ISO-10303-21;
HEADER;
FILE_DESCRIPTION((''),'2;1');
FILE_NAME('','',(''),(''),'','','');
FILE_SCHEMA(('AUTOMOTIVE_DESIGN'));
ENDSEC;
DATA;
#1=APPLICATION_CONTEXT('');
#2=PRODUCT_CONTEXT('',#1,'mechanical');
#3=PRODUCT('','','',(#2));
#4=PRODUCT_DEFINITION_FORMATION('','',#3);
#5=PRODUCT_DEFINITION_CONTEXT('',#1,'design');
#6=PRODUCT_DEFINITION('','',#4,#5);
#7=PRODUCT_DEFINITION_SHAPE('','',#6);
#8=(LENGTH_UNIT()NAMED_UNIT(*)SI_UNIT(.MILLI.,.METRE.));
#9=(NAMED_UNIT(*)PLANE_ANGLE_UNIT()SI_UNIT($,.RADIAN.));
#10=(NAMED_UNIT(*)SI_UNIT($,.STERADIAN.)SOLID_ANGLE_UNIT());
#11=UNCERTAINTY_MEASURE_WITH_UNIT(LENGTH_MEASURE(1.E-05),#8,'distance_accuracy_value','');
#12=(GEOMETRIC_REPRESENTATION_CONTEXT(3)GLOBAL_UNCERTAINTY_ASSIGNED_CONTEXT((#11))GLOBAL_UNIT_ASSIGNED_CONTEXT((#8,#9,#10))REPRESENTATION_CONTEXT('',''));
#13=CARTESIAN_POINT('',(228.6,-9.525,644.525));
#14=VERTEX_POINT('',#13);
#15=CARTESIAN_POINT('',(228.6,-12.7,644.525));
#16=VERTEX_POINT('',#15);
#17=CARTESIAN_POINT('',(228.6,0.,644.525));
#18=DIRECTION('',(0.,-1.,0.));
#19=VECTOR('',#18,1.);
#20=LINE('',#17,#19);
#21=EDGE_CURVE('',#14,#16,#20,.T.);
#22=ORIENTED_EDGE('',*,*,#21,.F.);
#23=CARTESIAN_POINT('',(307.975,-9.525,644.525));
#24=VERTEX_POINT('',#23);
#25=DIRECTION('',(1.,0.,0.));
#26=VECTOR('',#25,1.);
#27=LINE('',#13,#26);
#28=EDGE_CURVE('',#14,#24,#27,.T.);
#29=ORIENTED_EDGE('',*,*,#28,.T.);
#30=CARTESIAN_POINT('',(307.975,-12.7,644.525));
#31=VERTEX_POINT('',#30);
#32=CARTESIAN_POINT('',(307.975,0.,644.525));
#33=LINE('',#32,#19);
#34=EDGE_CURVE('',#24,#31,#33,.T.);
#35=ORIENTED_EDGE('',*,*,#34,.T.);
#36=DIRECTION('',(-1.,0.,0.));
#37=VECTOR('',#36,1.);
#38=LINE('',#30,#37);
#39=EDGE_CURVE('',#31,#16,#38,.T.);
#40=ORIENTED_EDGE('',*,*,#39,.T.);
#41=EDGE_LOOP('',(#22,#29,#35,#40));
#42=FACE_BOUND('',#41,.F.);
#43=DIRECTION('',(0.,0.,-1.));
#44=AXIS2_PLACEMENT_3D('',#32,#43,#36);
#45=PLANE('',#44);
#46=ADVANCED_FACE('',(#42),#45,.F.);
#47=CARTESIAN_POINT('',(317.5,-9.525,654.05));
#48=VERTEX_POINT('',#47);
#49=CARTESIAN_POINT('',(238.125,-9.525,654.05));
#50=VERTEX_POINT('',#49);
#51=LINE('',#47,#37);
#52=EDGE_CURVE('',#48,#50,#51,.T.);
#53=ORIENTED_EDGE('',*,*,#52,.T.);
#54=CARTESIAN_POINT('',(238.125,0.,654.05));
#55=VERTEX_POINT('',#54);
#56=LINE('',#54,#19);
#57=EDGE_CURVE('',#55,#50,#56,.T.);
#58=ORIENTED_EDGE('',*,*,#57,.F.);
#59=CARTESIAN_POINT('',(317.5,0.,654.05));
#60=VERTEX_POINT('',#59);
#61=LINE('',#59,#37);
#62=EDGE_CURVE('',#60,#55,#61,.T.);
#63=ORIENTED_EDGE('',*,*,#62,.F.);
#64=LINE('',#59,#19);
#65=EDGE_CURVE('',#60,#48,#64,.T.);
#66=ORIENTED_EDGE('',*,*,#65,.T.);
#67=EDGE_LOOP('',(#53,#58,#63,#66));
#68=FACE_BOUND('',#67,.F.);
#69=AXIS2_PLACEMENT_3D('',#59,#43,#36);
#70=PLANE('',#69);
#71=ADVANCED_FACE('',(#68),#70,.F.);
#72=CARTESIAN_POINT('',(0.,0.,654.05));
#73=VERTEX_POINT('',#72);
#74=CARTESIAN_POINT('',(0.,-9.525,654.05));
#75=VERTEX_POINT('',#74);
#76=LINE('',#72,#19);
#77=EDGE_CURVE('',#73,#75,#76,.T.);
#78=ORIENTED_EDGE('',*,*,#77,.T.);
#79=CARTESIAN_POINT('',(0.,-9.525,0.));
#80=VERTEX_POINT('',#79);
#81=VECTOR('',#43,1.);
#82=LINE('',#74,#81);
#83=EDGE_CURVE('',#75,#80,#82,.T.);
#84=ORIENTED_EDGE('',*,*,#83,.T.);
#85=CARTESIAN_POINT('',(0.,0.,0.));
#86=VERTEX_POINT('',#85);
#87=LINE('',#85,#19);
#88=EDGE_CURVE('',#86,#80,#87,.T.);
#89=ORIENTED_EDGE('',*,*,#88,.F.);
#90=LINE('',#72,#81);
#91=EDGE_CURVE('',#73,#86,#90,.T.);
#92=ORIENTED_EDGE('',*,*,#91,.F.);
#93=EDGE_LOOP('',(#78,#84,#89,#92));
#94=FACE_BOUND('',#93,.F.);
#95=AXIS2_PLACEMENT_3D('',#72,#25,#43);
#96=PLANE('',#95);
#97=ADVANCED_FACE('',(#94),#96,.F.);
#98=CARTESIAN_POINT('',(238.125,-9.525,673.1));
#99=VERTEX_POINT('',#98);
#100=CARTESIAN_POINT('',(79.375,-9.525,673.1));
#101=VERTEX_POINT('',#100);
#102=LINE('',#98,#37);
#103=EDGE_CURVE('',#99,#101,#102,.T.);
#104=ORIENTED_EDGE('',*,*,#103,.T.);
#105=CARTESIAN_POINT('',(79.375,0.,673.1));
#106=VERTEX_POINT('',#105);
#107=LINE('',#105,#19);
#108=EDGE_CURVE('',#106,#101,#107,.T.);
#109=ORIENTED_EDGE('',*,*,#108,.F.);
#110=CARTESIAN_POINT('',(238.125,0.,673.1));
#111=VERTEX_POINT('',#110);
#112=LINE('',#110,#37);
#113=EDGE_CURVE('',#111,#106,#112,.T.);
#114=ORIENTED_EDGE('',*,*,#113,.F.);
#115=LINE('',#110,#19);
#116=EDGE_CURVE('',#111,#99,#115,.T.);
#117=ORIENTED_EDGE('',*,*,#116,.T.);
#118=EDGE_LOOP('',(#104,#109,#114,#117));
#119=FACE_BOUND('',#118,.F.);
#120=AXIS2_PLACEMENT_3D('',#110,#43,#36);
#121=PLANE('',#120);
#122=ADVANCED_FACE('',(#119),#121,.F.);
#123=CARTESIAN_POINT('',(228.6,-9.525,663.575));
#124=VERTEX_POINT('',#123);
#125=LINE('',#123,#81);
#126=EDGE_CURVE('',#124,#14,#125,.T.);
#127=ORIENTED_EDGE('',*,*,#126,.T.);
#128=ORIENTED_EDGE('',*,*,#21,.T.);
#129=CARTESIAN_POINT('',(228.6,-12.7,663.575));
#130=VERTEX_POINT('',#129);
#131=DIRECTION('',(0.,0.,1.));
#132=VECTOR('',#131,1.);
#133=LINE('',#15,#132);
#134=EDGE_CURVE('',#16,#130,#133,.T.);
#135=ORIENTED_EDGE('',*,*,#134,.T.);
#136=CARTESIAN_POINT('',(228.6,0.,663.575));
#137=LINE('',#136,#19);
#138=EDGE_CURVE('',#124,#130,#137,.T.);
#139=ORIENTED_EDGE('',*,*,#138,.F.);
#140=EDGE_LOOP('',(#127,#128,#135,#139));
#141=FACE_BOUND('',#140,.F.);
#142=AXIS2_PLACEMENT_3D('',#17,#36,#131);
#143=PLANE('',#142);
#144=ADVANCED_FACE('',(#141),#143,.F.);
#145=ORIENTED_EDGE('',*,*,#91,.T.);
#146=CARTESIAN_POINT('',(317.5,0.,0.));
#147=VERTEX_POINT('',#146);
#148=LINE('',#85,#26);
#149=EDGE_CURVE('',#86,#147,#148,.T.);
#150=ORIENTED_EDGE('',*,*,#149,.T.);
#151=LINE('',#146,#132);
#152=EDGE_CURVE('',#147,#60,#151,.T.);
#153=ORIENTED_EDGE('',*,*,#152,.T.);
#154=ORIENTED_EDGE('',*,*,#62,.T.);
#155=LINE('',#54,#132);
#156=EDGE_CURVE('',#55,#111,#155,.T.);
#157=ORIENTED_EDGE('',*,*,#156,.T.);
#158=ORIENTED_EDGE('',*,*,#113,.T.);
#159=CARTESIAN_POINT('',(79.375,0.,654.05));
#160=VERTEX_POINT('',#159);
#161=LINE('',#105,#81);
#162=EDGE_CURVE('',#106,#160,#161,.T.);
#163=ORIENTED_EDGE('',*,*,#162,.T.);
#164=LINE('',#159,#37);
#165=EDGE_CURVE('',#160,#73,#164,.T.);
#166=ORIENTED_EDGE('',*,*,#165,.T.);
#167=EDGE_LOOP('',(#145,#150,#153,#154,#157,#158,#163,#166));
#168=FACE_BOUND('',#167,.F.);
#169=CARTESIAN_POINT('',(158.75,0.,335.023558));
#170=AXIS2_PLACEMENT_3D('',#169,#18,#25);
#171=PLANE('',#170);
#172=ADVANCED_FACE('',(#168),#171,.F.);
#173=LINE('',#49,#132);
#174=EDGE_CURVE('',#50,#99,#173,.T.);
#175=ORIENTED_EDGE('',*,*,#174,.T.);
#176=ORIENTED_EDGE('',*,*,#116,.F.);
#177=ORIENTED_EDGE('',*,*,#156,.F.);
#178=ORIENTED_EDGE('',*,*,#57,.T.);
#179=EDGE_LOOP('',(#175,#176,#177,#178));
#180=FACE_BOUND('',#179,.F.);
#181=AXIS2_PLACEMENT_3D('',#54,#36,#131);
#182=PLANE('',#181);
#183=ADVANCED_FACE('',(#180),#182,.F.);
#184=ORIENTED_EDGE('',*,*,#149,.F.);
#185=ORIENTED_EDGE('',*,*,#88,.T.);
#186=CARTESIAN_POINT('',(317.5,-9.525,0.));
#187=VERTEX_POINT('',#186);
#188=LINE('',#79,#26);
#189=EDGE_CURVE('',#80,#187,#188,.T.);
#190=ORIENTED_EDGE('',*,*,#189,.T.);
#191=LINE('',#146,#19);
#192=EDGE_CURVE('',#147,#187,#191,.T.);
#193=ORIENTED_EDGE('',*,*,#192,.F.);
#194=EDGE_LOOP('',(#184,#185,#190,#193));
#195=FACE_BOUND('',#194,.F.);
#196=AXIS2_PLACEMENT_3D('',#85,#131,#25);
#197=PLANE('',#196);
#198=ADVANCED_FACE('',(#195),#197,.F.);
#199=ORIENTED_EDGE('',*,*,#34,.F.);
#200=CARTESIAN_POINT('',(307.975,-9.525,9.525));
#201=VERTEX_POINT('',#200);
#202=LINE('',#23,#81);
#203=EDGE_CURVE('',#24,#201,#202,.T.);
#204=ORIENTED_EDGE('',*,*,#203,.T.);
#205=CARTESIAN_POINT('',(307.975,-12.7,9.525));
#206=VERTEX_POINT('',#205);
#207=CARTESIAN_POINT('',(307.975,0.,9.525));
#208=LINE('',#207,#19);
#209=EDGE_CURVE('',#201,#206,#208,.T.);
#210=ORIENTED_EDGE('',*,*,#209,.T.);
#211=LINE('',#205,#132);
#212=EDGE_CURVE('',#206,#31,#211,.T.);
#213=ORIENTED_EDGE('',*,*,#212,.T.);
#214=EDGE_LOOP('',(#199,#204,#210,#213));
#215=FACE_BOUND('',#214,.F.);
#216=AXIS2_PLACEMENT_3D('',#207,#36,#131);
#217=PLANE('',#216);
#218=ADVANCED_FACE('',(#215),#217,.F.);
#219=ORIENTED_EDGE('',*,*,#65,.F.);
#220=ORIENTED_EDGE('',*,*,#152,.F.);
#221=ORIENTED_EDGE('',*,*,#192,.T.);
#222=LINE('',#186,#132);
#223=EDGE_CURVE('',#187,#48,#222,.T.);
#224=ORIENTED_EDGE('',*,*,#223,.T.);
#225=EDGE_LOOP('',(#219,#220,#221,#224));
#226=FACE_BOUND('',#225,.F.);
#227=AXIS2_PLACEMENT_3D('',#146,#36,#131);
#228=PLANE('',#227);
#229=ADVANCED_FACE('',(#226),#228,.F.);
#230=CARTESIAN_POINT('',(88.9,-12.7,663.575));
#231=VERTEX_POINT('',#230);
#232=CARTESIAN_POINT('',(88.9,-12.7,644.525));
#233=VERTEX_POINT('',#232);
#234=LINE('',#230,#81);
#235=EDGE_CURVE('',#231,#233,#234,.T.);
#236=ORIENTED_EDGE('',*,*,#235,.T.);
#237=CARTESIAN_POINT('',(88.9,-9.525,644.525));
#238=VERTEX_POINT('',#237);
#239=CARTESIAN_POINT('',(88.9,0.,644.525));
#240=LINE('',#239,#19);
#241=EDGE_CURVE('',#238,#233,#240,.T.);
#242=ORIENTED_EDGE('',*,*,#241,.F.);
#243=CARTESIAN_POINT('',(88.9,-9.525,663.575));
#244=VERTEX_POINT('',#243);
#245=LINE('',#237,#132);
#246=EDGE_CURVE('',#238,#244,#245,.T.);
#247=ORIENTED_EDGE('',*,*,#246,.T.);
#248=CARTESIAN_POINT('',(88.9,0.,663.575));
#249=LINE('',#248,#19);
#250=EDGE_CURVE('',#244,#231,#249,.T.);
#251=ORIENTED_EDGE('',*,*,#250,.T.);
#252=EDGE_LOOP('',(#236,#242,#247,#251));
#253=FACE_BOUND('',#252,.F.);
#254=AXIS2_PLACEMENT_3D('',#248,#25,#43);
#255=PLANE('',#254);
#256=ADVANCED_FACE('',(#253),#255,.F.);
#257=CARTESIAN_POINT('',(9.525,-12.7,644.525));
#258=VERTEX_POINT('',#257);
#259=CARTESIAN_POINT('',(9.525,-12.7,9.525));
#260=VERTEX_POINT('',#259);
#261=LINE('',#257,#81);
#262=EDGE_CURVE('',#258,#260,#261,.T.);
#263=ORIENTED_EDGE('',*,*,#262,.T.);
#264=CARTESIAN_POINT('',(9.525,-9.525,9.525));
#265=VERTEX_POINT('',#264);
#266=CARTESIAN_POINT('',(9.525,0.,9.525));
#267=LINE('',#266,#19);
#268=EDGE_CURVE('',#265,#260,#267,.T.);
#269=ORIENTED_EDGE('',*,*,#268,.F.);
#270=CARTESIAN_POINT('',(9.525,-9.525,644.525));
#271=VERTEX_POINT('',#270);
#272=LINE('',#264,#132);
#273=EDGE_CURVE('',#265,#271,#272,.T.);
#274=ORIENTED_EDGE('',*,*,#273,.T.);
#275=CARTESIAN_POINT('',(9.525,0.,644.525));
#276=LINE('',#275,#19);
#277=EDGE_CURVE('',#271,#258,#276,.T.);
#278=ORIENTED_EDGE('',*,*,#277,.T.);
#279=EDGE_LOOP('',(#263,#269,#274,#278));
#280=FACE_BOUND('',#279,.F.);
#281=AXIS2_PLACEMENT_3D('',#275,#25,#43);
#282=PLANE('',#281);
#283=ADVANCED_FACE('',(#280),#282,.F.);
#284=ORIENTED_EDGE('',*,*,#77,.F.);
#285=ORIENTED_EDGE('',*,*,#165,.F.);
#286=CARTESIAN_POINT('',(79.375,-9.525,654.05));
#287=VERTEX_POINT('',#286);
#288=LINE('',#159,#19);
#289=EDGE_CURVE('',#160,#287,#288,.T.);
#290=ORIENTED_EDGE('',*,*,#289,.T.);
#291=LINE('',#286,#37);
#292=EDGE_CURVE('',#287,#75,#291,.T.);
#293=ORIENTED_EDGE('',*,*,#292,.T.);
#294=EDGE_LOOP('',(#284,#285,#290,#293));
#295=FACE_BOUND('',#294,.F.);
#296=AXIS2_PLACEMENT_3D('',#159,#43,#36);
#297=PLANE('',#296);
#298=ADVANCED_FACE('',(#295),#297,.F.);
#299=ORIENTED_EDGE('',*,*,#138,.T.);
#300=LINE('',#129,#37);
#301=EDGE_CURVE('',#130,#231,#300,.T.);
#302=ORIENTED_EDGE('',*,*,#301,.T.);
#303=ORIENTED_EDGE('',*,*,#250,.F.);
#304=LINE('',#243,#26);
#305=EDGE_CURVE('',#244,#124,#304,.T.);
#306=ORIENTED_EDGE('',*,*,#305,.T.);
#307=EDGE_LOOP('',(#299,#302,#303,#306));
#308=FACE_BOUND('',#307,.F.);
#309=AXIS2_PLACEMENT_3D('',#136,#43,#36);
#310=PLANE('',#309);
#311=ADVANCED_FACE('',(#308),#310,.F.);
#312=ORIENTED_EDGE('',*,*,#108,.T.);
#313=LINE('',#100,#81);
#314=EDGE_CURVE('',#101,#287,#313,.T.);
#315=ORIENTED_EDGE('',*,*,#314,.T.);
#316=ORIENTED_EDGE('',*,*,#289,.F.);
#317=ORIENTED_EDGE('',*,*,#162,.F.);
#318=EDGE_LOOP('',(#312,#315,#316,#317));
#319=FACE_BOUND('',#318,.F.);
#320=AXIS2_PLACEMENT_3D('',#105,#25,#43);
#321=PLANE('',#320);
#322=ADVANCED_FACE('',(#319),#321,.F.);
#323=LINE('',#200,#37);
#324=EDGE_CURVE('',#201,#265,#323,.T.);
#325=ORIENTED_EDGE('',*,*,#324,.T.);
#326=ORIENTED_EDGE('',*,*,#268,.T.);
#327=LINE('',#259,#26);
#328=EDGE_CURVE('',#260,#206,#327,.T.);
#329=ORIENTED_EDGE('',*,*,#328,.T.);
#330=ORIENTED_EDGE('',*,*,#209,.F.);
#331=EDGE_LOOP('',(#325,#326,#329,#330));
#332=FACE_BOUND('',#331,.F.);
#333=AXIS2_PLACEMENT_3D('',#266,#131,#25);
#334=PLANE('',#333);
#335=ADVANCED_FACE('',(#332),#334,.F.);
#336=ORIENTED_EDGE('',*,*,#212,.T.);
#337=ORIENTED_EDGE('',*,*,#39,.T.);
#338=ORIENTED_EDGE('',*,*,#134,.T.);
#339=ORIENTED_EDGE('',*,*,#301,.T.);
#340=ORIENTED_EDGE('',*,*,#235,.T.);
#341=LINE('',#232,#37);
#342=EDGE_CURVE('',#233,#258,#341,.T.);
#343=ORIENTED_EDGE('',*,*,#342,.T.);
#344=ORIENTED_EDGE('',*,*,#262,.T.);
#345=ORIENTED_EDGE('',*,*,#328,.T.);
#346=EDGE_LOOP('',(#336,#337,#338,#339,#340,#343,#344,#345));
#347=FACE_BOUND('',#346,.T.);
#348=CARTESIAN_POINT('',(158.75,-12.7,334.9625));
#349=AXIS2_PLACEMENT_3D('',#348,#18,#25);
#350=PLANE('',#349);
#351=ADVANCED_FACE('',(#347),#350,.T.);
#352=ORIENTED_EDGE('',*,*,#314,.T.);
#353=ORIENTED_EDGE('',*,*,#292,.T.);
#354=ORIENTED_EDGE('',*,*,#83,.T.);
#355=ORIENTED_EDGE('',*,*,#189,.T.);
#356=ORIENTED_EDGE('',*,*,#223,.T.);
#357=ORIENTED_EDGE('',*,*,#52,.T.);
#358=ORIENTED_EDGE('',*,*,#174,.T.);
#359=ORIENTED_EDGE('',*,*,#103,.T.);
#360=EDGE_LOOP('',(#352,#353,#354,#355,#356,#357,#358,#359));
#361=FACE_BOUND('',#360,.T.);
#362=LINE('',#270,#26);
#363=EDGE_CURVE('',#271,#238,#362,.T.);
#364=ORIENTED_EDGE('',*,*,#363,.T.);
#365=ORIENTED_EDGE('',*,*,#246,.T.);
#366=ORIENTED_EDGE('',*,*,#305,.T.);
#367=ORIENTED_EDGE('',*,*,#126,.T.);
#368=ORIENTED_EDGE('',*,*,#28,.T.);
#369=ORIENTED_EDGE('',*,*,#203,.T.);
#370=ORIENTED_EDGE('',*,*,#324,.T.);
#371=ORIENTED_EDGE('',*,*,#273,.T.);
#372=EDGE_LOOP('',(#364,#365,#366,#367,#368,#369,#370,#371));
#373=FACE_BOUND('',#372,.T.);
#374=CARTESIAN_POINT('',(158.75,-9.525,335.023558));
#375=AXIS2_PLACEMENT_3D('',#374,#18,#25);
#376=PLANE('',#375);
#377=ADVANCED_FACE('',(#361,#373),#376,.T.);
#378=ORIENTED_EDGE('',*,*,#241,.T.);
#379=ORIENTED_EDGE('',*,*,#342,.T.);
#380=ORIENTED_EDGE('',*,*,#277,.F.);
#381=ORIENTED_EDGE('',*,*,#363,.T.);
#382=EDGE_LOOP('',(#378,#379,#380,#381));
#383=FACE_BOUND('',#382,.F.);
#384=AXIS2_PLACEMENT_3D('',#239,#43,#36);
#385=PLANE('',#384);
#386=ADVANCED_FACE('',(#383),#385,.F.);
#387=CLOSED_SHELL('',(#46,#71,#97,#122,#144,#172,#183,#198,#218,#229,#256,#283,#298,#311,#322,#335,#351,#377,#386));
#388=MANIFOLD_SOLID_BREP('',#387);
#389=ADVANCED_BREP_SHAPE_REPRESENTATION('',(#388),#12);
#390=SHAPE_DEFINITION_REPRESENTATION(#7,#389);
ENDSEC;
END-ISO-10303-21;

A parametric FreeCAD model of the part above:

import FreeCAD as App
import Part
import Sketcher
Q = App.Units.Quantity

doc = App.newDocument("Part")
body = doc.addObject("PartDesign::Body", "Body")

# Sketch on XZ plane
sketch1 = doc.addObject("Sketcher::SketchObject", "Sketch")
body.addObject(sketch1)
sketch1.AttachmentSupport = (doc.XZ_Plane, [""])
sketch1.MapMode = "FlatFace"
sketch1.addGeometry([
    Part.LineSegment(App.Vector(229, 664, 0), App.Vector(89, 664, 0)),  # 0
    Part.LineSegment(App.Vector(89, 664, 0), App.Vector(89, 645, 0)),  # 1
    Part.LineSegment(App.Vector(89, 645, 0), App.Vector(10, 645, 0)),  # 2
    Part.LineSegment(App.Vector(10, 645, 0), App.Vector(10, 10, 0)),  # 3
    Part.LineSegment(App.Vector(10, 10, 0), App.Vector(308, 10, 0)),  # 4
    Part.LineSegment(App.Vector(308, 10, 0), App.Vector(308, 645, 0)),  # 5
    Part.LineSegment(App.Vector(308, 645, 0), App.Vector(229, 645, 0)),  # 6
    Part.LineSegment(App.Vector(229, 645, 0), App.Vector(229, 664, 0)),  # 7
], False)
sketch1.addConstraint([
    Sketcher.Constraint("Coincident", 0, 2, 1, 1),
    Sketcher.Constraint("Coincident", 1, 2, 2, 1),
    Sketcher.Constraint("Coincident", 2, 2, 3, 1),
    Sketcher.Constraint("Coincident", 3, 2, 4, 1),
    Sketcher.Constraint("Coincident", 4, 2, 5, 1),
    Sketcher.Constraint("Coincident", 5, 2, 6, 1),
    Sketcher.Constraint("Coincident", 6, 2, 7, 1),
    Sketcher.Constraint("Coincident", 7, 2, 0, 1),
    Sketcher.Constraint("Horizontal", 0),
    Sketcher.Constraint("Vertical", 1),
    Sketcher.Constraint("Horizontal", 2),
    Sketcher.Constraint("Vertical", 3),
    Sketcher.Constraint("Horizontal", 4),
    Sketcher.Constraint("Vertical", 5),
    Sketcher.Constraint("Horizontal", 6),
    Sketcher.Constraint("Vertical", 7),
    Sketcher.Constraint("Horizontal", 2, 2, 5, 2),
    Sketcher.Constraint("Equal", 2, 6),
    Sketcher.Constraint("DistanceY", 3, 2, 3, 1, Q("25 in")),
    Sketcher.Constraint("DistanceX", 0, 2, 0, 1, Q("5.5 in")),
    Sketcher.Constraint("DistanceX", -1, 1, 6, 2, Q("9 in")),
    Sketcher.Constraint("DistanceX", 4, 1, 4, 2, Q("11.75 in")),
    Sketcher.Constraint("DistanceY", 1, 2, 1, 1, Q("0.75 in")),
    Sketcher.Constraint("DistanceY", -1, 1, 0, 2, Q("26.125 in")),
])
pad1 = doc.addObject("PartDesign::Pad", "Pad")
body.addObject(pad1)
pad1.Profile = sketch1
pad1.Length = Q("0.5 in")

# Sketch on XZ plane
sketch2 = doc.addObject("Sketcher::SketchObject", "Sketch001")
body.addObject(sketch2)
sketch2.AttachmentSupport = (doc.XZ_Plane, [""])
sketch2.MapMode = "FlatFace"
sketch2.addGeometry([
    Part.LineSegment(App.Vector(0, 654, 0), App.Vector(0, 0, 0)),  # 0
    Part.LineSegment(App.Vector(0, 0, 0), App.Vector(318, 0, 0)),  # 1
    Part.LineSegment(App.Vector(318, 0, 0), App.Vector(318, 654, 0)),  # 2
    Part.LineSegment(App.Vector(318, 654, 0), App.Vector(238, 654, 0)),  # 3
    Part.LineSegment(App.Vector(238, 654, 0), App.Vector(238, 673, 0)),  # 4
    Part.LineSegment(App.Vector(238, 673, 0), App.Vector(79, 673, 0)),  # 5
    Part.LineSegment(App.Vector(79, 673, 0), App.Vector(79, 654, 0)),  # 6
    Part.LineSegment(App.Vector(79, 654, 0), App.Vector(0, 654, 0)),  # 7
    Part.LineSegment(App.Vector(10, 645, 0), App.Vector(89, 645, 0)),  # 8
    Part.LineSegment(App.Vector(89, 645, 0), App.Vector(89, 664, 0)),  # 9
    Part.LineSegment(App.Vector(89, 664, 0), App.Vector(229, 664, 0)),  # 10
    Part.LineSegment(App.Vector(229, 664, 0), App.Vector(229, 645, 0)),  # 11
    Part.LineSegment(App.Vector(229, 645, 0), App.Vector(308, 645, 0)),  # 12
    Part.LineSegment(App.Vector(308, 645, 0), App.Vector(308, 10, 0)),  # 13
    Part.LineSegment(App.Vector(308, 10, 0), App.Vector(10, 10, 0)),  # 14
    Part.LineSegment(App.Vector(10, 10, 0), App.Vector(10, 645, 0)),  # 15
], False)
sketch2.addConstraint([
    Sketcher.Constraint("Coincident", 0, 2, 1, 1),
    Sketcher.Constraint("Coincident", 1, 2, 2, 1),
    Sketcher.Constraint("Coincident", 2, 2, 3, 1),
    Sketcher.Constraint("Coincident", 3, 2, 4, 1),
    Sketcher.Constraint("Coincident", 4, 2, 5, 1),
    Sketcher.Constraint("Coincident", 5, 2, 6, 1),
    Sketcher.Constraint("Coincident", 6, 2, 7, 1),
    Sketcher.Constraint("Coincident", 7, 2, 0, 1),
    Sketcher.Constraint("Coincident", 8, 2, 9, 1),
    Sketcher.Constraint("Coincident", 9, 2, 10, 1),
    Sketcher.Constraint("Coincident", 10, 2, 11, 1),
    Sketcher.Constraint("Coincident", 11, 2, 12, 1),
    Sketcher.Constraint("Coincident", 12, 2, 13, 1),
    Sketcher.Constraint("Coincident", 13, 2, 14, 1),
    Sketcher.Constraint("Coincident", 14, 2, 15, 1),
    Sketcher.Constraint("Coincident", 15, 2, 8, 1),
    Sketcher.Constraint("Vertical", 0),
    Sketcher.Constraint("Horizontal", 1),
    Sketcher.Constraint("Vertical", 2),
    Sketcher.Constraint("Horizontal", 3),
    Sketcher.Constraint("Vertical", 4),
    Sketcher.Constraint("Horizontal", 5),
    Sketcher.Constraint("Vertical", 6),
    Sketcher.Constraint("Horizontal", 7),
    Sketcher.Constraint("Horizontal", 8),
    Sketcher.Constraint("Vertical", 9),
    Sketcher.Constraint("Horizontal", 10),
    Sketcher.Constraint("Vertical", 11),
    Sketcher.Constraint("Horizontal", 12),
    Sketcher.Constraint("Vertical", 13),
    Sketcher.Constraint("Horizontal", 14),
    Sketcher.Constraint("Vertical", 15),
    Sketcher.Constraint("Coincident", 0, 2, -1, 1),
    Sketcher.Constraint("Horizontal", 3, 2, 6, 2),
    Sketcher.Constraint("Horizontal", 8, 2, 11, 2),
    Sketcher.Constraint("Equal", 3, 7),
    Sketcher.Constraint("Equal", 7, 8),
    Sketcher.Constraint("Equal", 8, 12),
    Sketcher.Constraint("Equal", 6, 9),
    Sketcher.Constraint("DistanceY", 13, 2, 13, 1, Q("25 in")),
    Sketcher.Constraint("DistanceX", 1, 1, 1, 2, Q("12.5 in")),
    Sketcher.Constraint("DistanceX", 10, 1, 10, 2, Q("5.5 in")),
    Sketcher.Constraint("DistanceX", -1, 1, 10, 2, Q("9 in")),
    Sketcher.Constraint("DistanceX", 5, 2, 5, 1, Q("6.25 in")),
    Sketcher.Constraint("DistanceY", 0, 2, 0, 1, Q("25.75 in")),
    Sketcher.Constraint("DistanceY", 4, 1, 4, 2, Q("0.75 in")),
    Sketcher.Constraint("DistanceY", -1, 1, 8, 2, Q("25.375 in")),
])
pad2 = doc.addObject("PartDesign::Pad", "Pad001")
body.addObject(pad2)
pad2.Profile = sketch2
pad2.Length = Q("0.375 in")

doc.recompute()
